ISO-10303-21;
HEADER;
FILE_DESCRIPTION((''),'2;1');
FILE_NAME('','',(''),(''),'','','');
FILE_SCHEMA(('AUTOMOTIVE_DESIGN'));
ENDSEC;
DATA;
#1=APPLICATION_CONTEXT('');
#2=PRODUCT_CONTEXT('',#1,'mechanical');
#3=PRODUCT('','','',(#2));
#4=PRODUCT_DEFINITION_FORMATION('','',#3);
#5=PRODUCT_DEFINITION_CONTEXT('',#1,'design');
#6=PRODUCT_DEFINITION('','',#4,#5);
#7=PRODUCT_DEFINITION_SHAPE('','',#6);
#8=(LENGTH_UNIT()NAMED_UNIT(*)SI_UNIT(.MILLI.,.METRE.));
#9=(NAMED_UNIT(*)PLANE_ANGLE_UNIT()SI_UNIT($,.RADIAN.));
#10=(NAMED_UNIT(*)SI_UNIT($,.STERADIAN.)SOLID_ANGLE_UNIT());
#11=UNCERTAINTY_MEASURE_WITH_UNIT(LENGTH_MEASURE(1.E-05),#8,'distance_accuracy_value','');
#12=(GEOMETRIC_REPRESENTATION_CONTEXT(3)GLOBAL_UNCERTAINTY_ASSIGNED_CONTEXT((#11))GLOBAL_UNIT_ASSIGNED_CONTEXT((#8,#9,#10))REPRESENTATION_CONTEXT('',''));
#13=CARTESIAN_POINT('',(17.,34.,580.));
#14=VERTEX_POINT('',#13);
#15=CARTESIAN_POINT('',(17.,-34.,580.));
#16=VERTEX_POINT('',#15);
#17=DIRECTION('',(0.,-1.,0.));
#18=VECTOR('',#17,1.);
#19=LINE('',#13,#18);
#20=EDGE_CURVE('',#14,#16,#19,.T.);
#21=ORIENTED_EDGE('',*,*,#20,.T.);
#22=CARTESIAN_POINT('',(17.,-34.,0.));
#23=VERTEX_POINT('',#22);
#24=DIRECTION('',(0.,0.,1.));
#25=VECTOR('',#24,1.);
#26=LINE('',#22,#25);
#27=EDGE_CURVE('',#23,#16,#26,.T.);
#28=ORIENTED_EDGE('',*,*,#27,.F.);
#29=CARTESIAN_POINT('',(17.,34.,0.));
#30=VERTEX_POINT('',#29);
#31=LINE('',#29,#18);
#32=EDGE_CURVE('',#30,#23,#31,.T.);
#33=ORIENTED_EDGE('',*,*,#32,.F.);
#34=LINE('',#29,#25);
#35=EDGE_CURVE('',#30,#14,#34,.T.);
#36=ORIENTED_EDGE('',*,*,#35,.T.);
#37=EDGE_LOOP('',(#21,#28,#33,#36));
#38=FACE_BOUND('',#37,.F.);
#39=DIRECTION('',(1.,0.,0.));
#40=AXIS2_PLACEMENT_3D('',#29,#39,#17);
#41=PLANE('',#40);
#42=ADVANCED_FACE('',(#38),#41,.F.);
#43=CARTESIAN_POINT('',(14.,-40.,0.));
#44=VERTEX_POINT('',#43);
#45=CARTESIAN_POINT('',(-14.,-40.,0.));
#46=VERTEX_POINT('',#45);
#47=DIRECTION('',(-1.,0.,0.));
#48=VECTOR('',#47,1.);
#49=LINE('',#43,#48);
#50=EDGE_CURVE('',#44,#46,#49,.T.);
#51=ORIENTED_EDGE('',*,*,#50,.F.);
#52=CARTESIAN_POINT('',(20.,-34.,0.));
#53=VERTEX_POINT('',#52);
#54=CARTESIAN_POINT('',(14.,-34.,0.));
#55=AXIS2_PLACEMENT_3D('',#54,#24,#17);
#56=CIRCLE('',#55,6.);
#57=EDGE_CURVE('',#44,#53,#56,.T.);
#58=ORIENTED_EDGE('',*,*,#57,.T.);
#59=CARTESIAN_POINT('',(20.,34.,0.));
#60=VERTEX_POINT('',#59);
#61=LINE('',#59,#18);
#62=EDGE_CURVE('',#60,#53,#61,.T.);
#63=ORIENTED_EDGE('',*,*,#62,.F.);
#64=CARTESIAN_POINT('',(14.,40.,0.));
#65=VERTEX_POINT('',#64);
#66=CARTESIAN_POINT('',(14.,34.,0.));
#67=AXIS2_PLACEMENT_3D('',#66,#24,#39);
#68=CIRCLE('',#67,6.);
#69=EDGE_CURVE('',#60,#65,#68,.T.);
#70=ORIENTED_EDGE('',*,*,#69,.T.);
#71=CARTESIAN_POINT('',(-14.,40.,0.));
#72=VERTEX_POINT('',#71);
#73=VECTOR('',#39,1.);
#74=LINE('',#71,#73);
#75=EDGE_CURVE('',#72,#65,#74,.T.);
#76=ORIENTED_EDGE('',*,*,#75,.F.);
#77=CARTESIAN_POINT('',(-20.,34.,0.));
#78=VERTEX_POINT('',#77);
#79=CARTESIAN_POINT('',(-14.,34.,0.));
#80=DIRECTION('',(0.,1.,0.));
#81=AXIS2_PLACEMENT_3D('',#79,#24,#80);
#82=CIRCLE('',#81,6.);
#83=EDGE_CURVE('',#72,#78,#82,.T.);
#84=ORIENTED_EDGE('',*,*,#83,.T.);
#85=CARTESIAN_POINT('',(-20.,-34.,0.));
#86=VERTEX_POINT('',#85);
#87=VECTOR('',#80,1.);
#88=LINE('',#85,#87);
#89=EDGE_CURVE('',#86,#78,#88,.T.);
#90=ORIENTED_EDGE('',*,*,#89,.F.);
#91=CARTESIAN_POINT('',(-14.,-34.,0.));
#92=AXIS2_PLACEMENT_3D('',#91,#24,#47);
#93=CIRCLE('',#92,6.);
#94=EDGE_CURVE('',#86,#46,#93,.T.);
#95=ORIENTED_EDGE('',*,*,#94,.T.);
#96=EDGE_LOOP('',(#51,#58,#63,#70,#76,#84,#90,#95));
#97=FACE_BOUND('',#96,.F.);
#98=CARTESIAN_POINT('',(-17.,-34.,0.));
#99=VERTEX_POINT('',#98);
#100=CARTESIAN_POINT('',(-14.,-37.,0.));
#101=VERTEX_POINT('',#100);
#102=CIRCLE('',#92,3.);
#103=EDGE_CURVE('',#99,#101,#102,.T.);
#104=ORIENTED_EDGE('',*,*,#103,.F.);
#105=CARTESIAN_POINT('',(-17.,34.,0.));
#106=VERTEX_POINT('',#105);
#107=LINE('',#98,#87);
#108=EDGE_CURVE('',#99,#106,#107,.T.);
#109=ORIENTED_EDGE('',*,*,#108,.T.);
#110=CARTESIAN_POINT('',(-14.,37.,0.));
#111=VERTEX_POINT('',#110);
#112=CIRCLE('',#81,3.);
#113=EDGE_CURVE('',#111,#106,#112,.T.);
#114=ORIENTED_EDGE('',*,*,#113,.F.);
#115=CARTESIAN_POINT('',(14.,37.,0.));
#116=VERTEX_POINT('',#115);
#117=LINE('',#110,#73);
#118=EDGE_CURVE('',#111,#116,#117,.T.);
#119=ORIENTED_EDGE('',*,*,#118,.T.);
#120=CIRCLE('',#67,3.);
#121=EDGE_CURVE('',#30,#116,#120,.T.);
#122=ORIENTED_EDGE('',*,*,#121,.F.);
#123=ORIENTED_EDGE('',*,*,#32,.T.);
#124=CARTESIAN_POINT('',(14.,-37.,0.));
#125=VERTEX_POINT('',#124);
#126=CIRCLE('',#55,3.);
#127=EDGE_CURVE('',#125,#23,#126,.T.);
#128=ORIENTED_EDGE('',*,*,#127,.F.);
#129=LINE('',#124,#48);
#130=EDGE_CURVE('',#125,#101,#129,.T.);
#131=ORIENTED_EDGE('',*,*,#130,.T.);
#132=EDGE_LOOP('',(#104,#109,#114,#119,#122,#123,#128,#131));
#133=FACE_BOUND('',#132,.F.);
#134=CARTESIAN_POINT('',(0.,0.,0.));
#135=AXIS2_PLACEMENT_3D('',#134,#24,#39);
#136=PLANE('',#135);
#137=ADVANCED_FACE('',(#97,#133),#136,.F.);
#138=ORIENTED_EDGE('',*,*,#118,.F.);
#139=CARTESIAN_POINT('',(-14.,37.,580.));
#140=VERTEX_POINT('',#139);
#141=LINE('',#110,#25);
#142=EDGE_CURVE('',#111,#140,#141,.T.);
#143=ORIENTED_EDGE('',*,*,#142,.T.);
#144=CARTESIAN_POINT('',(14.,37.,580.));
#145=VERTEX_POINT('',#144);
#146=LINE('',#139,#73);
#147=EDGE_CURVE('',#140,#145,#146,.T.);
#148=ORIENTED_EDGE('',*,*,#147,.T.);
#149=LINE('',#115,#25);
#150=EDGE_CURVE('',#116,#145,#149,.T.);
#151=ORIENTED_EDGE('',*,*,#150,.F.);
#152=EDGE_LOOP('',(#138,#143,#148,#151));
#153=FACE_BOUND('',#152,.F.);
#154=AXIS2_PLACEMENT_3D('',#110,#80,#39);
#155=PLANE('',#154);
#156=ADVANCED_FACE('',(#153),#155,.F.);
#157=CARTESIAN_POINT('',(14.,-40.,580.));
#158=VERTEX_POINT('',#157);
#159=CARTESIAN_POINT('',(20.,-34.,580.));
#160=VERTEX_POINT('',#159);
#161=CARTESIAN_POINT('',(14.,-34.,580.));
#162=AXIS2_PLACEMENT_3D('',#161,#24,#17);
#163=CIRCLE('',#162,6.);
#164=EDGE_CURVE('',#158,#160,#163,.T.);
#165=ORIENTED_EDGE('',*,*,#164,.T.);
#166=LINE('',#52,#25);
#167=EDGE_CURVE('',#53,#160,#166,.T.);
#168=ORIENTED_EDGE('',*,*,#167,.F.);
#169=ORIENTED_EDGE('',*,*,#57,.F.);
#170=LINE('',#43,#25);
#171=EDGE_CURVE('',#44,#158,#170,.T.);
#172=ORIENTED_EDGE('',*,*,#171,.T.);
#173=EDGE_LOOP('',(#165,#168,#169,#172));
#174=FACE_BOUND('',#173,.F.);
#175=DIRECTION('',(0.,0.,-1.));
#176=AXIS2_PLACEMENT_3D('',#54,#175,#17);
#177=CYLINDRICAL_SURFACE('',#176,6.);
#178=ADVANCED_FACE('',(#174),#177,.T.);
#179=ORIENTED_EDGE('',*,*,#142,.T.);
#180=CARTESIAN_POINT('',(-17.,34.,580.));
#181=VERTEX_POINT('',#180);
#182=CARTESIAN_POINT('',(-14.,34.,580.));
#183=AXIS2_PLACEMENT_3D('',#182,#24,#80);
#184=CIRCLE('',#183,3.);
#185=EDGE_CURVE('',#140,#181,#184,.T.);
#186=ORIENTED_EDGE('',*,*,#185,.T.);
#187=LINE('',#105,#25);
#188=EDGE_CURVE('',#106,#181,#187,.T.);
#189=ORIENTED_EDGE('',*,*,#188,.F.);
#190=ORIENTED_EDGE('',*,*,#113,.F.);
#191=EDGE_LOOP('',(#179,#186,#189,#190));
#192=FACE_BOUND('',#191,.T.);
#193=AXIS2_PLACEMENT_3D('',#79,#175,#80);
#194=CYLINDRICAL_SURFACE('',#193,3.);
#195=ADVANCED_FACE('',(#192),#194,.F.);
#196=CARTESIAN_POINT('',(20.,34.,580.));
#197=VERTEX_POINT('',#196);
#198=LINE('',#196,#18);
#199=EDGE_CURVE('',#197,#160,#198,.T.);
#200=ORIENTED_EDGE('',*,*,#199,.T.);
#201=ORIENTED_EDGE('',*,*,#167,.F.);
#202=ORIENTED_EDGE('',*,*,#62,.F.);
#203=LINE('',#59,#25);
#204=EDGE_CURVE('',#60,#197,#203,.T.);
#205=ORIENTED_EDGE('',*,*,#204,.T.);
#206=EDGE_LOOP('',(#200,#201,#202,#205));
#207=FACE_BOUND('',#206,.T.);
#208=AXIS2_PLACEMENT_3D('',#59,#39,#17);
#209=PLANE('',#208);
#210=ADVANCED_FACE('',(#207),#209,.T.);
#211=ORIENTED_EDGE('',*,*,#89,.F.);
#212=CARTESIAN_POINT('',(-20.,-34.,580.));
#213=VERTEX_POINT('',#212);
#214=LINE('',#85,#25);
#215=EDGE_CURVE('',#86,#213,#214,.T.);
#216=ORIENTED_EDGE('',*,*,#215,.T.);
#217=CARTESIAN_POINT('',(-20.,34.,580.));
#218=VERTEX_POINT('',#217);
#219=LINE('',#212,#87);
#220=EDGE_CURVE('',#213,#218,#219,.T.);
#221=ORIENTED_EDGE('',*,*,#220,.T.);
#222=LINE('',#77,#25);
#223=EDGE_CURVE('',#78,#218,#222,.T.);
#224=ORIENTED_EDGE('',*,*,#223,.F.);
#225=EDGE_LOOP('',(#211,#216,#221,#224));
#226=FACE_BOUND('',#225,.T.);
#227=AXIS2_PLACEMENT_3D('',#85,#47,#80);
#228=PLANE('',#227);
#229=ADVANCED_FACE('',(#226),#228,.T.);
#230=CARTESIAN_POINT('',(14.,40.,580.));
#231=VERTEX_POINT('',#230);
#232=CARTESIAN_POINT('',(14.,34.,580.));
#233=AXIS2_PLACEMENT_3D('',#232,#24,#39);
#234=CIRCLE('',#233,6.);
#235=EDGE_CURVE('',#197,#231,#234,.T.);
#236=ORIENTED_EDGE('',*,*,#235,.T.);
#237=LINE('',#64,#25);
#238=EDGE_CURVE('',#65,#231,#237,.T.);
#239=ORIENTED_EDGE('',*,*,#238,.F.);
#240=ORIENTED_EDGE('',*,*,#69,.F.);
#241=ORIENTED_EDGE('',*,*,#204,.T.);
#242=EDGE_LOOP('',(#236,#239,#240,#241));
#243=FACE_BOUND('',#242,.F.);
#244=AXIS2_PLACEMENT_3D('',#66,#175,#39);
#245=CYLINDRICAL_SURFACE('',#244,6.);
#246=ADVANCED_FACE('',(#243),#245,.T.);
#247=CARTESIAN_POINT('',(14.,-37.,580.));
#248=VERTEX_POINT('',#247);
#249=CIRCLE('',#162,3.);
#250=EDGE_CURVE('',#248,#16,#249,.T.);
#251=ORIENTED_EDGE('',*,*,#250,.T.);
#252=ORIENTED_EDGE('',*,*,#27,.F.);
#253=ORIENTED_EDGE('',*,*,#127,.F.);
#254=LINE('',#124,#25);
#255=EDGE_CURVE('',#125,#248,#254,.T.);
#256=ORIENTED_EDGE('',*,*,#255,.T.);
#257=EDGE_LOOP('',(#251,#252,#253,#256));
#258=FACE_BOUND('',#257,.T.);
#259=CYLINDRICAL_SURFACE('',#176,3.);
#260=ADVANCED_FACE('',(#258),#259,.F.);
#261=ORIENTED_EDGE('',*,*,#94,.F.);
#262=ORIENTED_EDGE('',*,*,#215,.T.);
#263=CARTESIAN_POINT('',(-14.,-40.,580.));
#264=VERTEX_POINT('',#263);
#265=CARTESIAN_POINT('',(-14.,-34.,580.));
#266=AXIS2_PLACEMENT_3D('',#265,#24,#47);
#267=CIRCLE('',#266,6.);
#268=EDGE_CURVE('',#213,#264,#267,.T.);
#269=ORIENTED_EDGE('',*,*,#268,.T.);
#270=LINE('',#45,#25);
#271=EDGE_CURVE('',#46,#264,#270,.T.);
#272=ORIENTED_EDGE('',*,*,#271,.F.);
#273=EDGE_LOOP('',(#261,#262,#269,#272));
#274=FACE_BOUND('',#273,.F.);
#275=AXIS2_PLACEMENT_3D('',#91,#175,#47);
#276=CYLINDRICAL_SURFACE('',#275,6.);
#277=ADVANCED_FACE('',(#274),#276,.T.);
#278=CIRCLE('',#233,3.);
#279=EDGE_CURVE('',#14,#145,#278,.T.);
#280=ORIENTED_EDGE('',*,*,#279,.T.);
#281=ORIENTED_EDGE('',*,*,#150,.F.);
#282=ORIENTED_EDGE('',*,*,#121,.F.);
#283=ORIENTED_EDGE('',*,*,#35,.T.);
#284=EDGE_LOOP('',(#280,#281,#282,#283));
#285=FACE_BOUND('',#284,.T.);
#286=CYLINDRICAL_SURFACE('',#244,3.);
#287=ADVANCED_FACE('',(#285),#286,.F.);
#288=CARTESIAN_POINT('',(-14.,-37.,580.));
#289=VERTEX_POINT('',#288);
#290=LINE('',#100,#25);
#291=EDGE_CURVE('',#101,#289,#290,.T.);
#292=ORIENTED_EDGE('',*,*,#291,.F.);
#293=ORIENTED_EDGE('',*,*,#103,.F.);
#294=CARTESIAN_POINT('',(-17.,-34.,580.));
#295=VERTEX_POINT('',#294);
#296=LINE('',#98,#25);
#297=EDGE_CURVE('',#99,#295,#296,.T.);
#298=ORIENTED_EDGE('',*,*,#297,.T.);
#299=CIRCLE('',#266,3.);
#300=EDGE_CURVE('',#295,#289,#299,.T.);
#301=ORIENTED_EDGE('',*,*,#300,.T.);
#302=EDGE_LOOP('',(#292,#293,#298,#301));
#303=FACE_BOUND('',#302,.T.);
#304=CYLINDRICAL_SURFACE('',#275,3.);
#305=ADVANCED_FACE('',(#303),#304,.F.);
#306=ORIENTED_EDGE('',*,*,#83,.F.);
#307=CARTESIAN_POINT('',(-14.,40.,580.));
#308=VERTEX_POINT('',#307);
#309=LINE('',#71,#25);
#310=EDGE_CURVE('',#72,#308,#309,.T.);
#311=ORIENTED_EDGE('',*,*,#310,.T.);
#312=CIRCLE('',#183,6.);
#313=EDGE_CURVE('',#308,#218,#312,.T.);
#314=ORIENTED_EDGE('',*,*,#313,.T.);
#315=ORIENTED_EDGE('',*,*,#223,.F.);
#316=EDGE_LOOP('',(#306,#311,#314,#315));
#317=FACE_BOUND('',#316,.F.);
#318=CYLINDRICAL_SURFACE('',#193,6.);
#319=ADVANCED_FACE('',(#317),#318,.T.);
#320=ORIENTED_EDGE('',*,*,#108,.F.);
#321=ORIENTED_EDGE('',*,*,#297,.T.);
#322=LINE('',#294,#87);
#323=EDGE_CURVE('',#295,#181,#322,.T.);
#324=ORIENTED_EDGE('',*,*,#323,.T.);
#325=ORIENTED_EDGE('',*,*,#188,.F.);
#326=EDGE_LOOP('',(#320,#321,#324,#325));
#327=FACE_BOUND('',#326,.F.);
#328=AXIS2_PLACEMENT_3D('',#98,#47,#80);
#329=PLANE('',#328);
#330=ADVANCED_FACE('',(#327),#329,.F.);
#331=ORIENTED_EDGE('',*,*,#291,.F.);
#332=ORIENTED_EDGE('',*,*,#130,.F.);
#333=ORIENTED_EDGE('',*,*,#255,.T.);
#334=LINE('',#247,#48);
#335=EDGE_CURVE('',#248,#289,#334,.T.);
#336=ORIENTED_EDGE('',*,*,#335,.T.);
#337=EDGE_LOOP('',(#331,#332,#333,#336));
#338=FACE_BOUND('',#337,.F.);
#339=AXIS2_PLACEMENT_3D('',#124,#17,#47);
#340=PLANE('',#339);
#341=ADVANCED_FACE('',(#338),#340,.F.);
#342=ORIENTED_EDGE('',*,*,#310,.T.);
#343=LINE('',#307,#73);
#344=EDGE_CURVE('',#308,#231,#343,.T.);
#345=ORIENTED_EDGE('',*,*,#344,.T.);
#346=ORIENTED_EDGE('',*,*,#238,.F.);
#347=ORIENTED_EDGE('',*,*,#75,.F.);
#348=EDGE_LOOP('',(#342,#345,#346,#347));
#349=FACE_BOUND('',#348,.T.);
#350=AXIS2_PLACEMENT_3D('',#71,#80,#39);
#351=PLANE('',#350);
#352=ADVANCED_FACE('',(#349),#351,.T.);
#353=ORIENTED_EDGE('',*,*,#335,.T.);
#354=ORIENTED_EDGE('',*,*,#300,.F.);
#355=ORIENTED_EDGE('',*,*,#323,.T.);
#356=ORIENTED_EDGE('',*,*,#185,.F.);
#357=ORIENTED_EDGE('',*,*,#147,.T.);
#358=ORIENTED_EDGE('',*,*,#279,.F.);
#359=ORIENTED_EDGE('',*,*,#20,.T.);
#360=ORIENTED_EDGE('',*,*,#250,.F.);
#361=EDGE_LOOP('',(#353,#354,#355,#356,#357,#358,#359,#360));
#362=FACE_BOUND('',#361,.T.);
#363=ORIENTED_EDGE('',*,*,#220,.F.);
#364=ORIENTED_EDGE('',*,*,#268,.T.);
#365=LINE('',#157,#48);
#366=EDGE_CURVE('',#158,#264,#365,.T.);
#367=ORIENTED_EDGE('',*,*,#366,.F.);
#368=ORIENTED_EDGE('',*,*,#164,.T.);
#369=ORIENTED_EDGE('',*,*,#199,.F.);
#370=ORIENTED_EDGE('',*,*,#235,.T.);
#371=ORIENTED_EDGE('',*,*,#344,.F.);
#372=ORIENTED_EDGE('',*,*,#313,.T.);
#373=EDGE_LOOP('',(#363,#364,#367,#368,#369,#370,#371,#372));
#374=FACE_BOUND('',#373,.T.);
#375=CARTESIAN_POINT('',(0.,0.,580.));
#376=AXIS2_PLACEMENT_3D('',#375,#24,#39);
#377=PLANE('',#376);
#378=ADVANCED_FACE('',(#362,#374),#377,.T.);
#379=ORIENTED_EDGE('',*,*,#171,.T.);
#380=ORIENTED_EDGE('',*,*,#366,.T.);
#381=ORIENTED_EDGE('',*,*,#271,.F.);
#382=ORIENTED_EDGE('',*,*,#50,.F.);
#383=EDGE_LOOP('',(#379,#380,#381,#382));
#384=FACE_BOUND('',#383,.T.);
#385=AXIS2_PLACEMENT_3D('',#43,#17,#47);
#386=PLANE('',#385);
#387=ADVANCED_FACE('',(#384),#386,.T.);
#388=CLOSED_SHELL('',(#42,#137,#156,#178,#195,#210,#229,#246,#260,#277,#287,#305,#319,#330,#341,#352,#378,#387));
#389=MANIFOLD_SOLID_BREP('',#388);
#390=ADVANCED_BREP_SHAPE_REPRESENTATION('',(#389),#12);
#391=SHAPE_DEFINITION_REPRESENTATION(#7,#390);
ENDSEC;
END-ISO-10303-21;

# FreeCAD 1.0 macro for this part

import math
import FreeCAD as App
import Part
import Sketcher
from FreeCAD import Vector

doc = App.newDocument("Part")
body = doc.addObject("PartDesign::Body", "Body")

sketch1 = body.newObject("Sketcher::SketchObject", "Sketch")
sketch1.AttachmentSupport = (doc.getObject("XY_Plane"), [""])
sketch1.MapMode = "FlatFace"
sketch1.addGeometry([
    Part.LineSegment(Vector(-20, 34, 0), Vector(-20, -34, 0)),
    Part.ArcOfCircle(Part.Circle(Vector(-14, -34, 0), Vector(0, 0, 1), 6), math.radians(180), math.radians(270)),
    Part.LineSegment(Vector(-14, -40, 0), Vector(14, -40, 0)),
    Part.ArcOfCircle(Part.Circle(Vector(14, -34, 0), Vector(0, 0, 1), 6), math.radians(-90), math.radians(0)),
    Part.LineSegment(Vector(20, -34, 0), Vector(20, 34, 0)),
    Part.ArcOfCircle(Part.Circle(Vector(14, 34, 0), Vector(0, 0, 1), 6), math.radians(0), math.radians(90)),
    Part.LineSegment(Vector(14, 40, 0), Vector(-14, 40, 0)),
    Part.ArcOfCircle(Part.Circle(Vector(-14, 34, 0), Vector(0, 0, 1), 6), math.radians(90), math.radians(180)),
    Part.ArcOfCircle(Part.Circle(Vector(-14, 34, 0), Vector(0, 0, 1), 3), math.radians(90), math.radians(180)),
    Part.LineSegment(Vector(-14, 37, 0), Vector(14, 37, 0)),
    Part.ArcOfCircle(Part.Circle(Vector(14, 34, 0), Vector(0, 0, 1), 3), math.radians(0), math.radians(90)),
    Part.LineSegment(Vector(17, 34, 0), Vector(17, -34, 0)),
    Part.ArcOfCircle(Part.Circle(Vector(14, -34, 0), Vector(0, 0, 1), 3), math.radians(-90), math.radians(0)),
    Part.LineSegment(Vector(14, -37, 0), Vector(-14, -37, 0)),
    Part.ArcOfCircle(Part.Circle(Vector(-14, -34, 0), Vector(0, 0, 1), 3), math.radians(180), math.radians(270)),
    Part.LineSegment(Vector(-17, -34, 0), Vector(-17, 34, 0)),
], False)
sketch1.addConstraint([
    Sketcher.Constraint("Tangent", 0, 2, 1, 1),
    Sketcher.Constraint("Tangent", 1, 2, 2, 1),
    Sketcher.Constraint("Tangent", 2, 2, 3, 1),
    Sketcher.Constraint("Tangent", 3, 2, 4, 1),
    Sketcher.Constraint("Tangent", 4, 2, 5, 1),
    Sketcher.Constraint("Tangent", 5, 2, 6, 1),
    Sketcher.Constraint("Tangent", 6, 2, 7, 1),
    Sketcher.Constraint("Tangent", 7, 2, 0, 1),
    Sketcher.Constraint("Tangent", 8, 1, 9, 1),
    Sketcher.Constraint("Tangent", 9, 2, 10, 2),
    Sketcher.Constraint("Tangent", 10, 1, 11, 1),
    Sketcher.Constraint("Tangent", 11, 2, 12, 2),
    Sketcher.Constraint("Tangent", 12, 1, 13, 1),
    Sketcher.Constraint("Tangent", 13, 2, 14, 2),
    Sketcher.Constraint("Tangent", 14, 1, 15, 1),
    Sketcher.Constraint("Tangent", 15, 2, 8, 2),
    Sketcher.Constraint("Vertical", 0),
    Sketcher.Constraint("Horizontal", 2),
    Sketcher.Constraint("Vertical", 4),
    Sketcher.Constraint("Horizontal", 6),
    Sketcher.Constraint("Horizontal", 9),
    Sketcher.Constraint("Vertical", 11),
    Sketcher.Constraint("Horizontal", 13),
    Sketcher.Constraint("Vertical", 15),
    Sketcher.Constraint("Coincident", 8, 3, 7, 3),
    Sketcher.Constraint("Coincident", 10, 3, 5, 3),
    Sketcher.Constraint("Coincident", 12, 3, 3, 3),
    Sketcher.Constraint("Equal", 1, 3),
    Sketcher.Constraint("Equal", 3, 5),
    Sketcher.Constraint("Equal", 5, 7),
    Sketcher.Constraint("Equal", 12, 14),
    Sketcher.Constraint("Symmetric", 1, 3, 5, 3, -1, 1),
    Sketcher.Constraint("Radius", 1, 6.0),
    Sketcher.Constraint("Radius", 8, 3.0),
    Sketcher.Constraint("DistanceX", 0, 2, -1, 1, 20.0),
    Sketcher.Constraint("DistanceY", 1, 2, -1, 1, 40.0),
])
pad1 = body.newObject("PartDesign::Pad", "Pad")
pad1.Profile = sketch1
pad1.Length = 580

doc.recompute()
